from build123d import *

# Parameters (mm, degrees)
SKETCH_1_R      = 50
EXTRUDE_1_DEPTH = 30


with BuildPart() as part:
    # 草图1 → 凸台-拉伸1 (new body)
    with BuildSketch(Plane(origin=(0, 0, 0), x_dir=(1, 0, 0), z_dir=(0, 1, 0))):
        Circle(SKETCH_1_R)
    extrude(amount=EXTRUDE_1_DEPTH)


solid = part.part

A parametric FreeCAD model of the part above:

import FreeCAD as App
import Part
import Sketcher
Q = App.Units.Quantity

doc = App.newDocument("Part")
body = doc.addObject("PartDesign::Body", "Body")

sketch1 = body.newObject("Sketcher::SketchObject", "Sketch")
sketch1.AttachmentSupport = (doc.getObject("XZ_Plane"), [""])
sketch1.MapMode = "FlatFace"
sketch1.addGeometry(Part.Circle(App.Vector(0, 0, 0), App.Vector(0, 0, 1), 50), False)
sketch1.addConstraint(Sketcher.Constraint("Coincident", 0, 3, -1, 1))
sketch1.addConstraint(Sketcher.Constraint("Diameter", 0, Q("100 mm")))
pad1 = body.newObject("PartDesign::Pad", "Pad")
pad1.Profile = sketch1
pad1.Length = 30
pad1.Reversed = True

doc.recompute()
